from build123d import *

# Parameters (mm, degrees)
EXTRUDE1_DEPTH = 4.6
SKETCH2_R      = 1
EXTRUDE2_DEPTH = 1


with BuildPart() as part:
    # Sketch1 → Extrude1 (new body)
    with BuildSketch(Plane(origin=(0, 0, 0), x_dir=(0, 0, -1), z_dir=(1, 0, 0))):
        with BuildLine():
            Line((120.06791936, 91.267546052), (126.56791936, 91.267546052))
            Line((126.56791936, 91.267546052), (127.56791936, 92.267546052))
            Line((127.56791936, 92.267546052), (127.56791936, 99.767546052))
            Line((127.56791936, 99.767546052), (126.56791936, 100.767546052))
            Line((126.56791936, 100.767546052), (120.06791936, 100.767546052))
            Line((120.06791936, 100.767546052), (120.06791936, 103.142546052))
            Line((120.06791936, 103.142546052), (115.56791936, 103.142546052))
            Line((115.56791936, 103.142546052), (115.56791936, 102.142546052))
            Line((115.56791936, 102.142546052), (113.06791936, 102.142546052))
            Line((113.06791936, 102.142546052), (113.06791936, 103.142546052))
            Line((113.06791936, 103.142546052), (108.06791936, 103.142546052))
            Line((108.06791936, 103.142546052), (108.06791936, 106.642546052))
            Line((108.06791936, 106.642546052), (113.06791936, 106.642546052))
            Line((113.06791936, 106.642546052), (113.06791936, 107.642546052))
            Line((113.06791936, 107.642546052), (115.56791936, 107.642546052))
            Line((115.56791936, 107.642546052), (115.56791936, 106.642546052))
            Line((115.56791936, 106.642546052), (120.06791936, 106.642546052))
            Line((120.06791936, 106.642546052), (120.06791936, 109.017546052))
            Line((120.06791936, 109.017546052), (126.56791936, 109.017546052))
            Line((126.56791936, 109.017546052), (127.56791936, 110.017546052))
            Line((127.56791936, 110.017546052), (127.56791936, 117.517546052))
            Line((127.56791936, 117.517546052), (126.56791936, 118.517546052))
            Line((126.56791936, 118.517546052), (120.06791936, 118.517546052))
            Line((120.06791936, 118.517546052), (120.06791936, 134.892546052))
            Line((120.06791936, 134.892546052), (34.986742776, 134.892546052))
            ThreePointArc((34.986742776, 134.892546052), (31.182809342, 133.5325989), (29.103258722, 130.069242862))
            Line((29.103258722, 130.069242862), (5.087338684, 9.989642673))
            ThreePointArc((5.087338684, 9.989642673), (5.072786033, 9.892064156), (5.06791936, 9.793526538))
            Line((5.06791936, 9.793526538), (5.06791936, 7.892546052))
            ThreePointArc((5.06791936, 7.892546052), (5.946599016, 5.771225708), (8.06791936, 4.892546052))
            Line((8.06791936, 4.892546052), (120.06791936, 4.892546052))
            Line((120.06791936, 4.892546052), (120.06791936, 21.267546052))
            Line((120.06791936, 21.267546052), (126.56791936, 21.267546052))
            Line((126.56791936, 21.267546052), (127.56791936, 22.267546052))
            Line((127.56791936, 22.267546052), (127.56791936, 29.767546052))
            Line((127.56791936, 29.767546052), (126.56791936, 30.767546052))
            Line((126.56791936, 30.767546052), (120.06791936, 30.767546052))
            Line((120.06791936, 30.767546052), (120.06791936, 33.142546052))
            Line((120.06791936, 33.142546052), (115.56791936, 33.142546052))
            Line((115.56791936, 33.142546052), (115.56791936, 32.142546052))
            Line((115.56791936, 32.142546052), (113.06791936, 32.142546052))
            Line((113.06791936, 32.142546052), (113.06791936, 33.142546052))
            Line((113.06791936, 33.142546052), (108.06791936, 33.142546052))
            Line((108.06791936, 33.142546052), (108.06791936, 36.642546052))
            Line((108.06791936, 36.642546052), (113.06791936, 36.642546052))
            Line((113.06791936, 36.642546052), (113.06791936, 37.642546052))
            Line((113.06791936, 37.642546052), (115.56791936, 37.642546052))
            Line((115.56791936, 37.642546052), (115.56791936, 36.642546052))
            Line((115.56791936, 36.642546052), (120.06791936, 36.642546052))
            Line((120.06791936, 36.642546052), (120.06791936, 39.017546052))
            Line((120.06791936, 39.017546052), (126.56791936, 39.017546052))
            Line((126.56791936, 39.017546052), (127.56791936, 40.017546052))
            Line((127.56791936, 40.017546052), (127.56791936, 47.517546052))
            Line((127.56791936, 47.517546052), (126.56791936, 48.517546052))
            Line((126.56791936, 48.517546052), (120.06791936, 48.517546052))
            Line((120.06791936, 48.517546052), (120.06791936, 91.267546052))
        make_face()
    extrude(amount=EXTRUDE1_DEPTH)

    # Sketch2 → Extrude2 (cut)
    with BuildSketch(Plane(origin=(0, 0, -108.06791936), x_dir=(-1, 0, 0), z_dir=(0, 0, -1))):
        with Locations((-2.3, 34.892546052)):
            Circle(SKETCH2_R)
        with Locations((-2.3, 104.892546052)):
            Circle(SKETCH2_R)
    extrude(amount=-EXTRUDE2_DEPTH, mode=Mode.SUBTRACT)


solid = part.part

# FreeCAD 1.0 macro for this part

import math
import FreeCAD as App
import Part
import Sketcher
Q = App.Units.Quantity

doc = App.newDocument("Part")
params = doc.addObject("Spreadsheet::Sheet", "Params")
for row, (alias, value) in enumerate([
    ("sketch1_radius", "6 mm"),
    ("sketch1_radius2", "1 mm"),
    ("sketch1_radius3", "3 mm"),
    ("sketch1_width", "1 mm"),
    ("sketch1_height", "5 mm"),
    ("pad1_length", "4.6 mm"),
    ("sketch2_diameter", "2 mm"),
    ("pocket1_length", "1 mm"),
], start=1):
    params.set(f"A{row}", alias)
    params.set(f"B{row}", "=" + value)
    params.setAlias(f"B{row}", alias)

body = doc.addObject("PartDesign::Body", "Body")

sketch1 = body.newObject("Sketcher::SketchObject", "Sketch")
sketch1.AttachmentSupport = (doc.getObject("YZ_Plane"), [""])
sketch1.MapMode = "FlatFace"
sketch1.addGeometry([
    Part.LineSegment(App.Vector(91.27, -120.07, 0), App.Vector(91.27, -126.57, 0)),
    Part.LineSegment(App.Vector(91.27, -126.57, 0), App.Vector(92.27, -127.57, 0)),
    Part.LineSegment(App.Vector(92.27, -127.57, 0), App.Vector(99.77, -127.57, 0)),
    Part.LineSegment(App.Vector(99.77, -127.57, 0), App.Vector(100.77, -126.57, 0)),
    Part.LineSegment(App.Vector(100.77, -126.57, 0), App.Vector(100.77, -120.07, 0)),
    Part.LineSegment(App.Vector(100.77, -120.07, 0), App.Vector(103.14, -120.07, 0)),
    Part.LineSegment(App.Vector(103.14, -120.07, 0), App.Vector(103.14, -115.57, 0)),
    Part.LineSegment(App.Vector(103.14, -115.57, 0), App.Vector(102.14, -115.57, 0)),
    Part.LineSegment(App.Vector(102.14, -115.57, 0), App.Vector(102.14, -113.07, 0)),
    Part.LineSegment(App.Vector(102.14, -113.07, 0), App.Vector(103.14, -113.07, 0)),
    Part.LineSegment(App.Vector(103.14, -113.07, 0), App.Vector(103.14, -108.07, 0)),
    Part.LineSegment(App.Vector(103.14, -108.07, 0), App.Vector(106.64, -108.07, 0)),
    Part.LineSegment(App.Vector(106.64, -108.07, 0), App.Vector(106.64, -113.07, 0)),
    Part.LineSegment(App.Vector(106.64, -113.07, 0), App.Vector(107.64, -113.07, 0)),
    Part.LineSegment(App.Vector(107.64, -113.07, 0), App.Vector(107.64, -115.57, 0)),
    Part.LineSegment(App.Vector(107.64, -115.57, 0), App.Vector(106.64, -115.57, 0)),
    Part.LineSegment(App.Vector(106.64, -115.57, 0), App.Vector(106.64, -120.07, 0)),
    Part.LineSegment(App.Vector(106.64, -120.07, 0), App.Vector(109.02, -120.07, 0)),
    Part.LineSegment(App.Vector(109.02, -120.07, 0), App.Vector(109.02, -126.57, 0)),
    Part.LineSegment(App.Vector(109.02, -126.57, 0), App.Vector(110.02, -127.57, 0)),
    Part.LineSegment(App.Vector(110.02, -127.57, 0), App.Vector(117.52, -127.57, 0)),
    Part.LineSegment(App.Vector(117.52, -127.57, 0), App.Vector(118.52, -126.57, 0)),
    Part.LineSegment(App.Vector(118.52, -126.57, 0), App.Vector(118.52, -120.07, 0)),
    Part.LineSegment(App.Vector(118.52, -120.07, 0), App.Vector(134.89, -120.07, 0)),
    Part.LineSegment(App.Vector(134.89, -120.07, 0), App.Vector(134.89, -34.99, 0)),
    Part.ArcOfCircle(Part.Circle(App.Vector(128.89, -34.99, 0), App.Vector(0, 0, 1), 6), math.radians(0), math.radians(79)),
    Part.LineSegment(App.Vector(130.07, -29.1, 0), App.Vector(9.99, -5.09, 0)),
    Part.ArcOfCircle(Part.Circle(App.Vector(9.79, -6.07, 0), App.Vector(0, 0, 1), 1), math.radians(78.69), math.radians(90)),
    Part.LineSegment(App.Vector(9.79, -5.07, 0), App.Vector(7.89, -5.07, 0)),
    Part.ArcOfCircle(Part.Circle(App.Vector(7.89, -8.07, 0), App.Vector(0, 0, 1), 3), math.radians(90), math.radians(180)),
    Part.LineSegment(App.Vector(4.89, -8.07, 0), App.Vector(4.89, -120.07, 0)),
    Part.LineSegment(App.Vector(4.89, -120.07, 0), App.Vector(21.27, -120.07, 0)),
    Part.LineSegment(App.Vector(21.27, -120.07, 0), App.Vector(21.27, -126.57, 0)),
    Part.LineSegment(App.Vector(21.27, -126.57, 0), App.Vector(22.27, -127.57, 0)),
    Part.LineSegment(App.Vector(22.27, -127.57, 0), App.Vector(29.77, -127.57, 0)),
    Part.LineSegment(App.Vector(29.77, -127.57, 0), App.Vector(30.77, -126.57, 0)),
    Part.LineSegment(App.Vector(30.77, -126.57, 0), App.Vector(30.77, -120.07, 0)),
    Part.LineSegment(App.Vector(30.77, -120.07, 0), App.Vector(33.14, -120.07, 0)),
    Part.LineSegment(App.Vector(33.14, -120.07, 0), App.Vector(33.14, -115.57, 0)),
    Part.LineSegment(App.Vector(33.14, -115.57, 0), App.Vector(32.14, -115.57, 0)),
    Part.LineSegment(App.Vector(32.14, -115.57, 0), App.Vector(32.14, -113.07, 0)),
    Part.LineSegment(App.Vector(32.14, -113.07, 0), App.Vector(33.14, -113.07, 0)),
    Part.LineSegment(App.Vector(33.14, -113.07, 0), App.Vector(33.14, -108.07, 0)),
    Part.LineSegment(App.Vector(33.14, -108.07, 0), App.Vector(36.64, -108.07, 0)),
    Part.LineSegment(App.Vector(36.64, -108.07, 0), App.Vector(36.64, -113.07, 0)),
    Part.LineSegment(App.Vector(36.64, -113.07, 0), App.Vector(37.64, -113.07, 0)),
    Part.LineSegment(App.Vector(37.64, -113.07, 0), App.Vector(37.64, -115.57, 0)),
    Part.LineSegment(App.Vector(37.64, -115.57, 0), App.Vector(36.64, -115.57, 0)),
    Part.LineSegment(App.Vector(36.64, -115.57, 0), App.Vector(36.64, -120.07, 0)),
    Part.LineSegment(App.Vector(36.64, -120.07, 0), App.Vector(39.02, -120.07, 0)),
    Part.LineSegment(App.Vector(39.02, -120.07, 0), App.Vector(39.02, -126.57, 0)),
    Part.LineSegment(App.Vector(39.02, -126.57, 0), App.Vector(40.02, -127.57, 0)),
    Part.LineSegment(App.Vector(40.02, -127.57, 0), App.Vector(47.52, -127.57, 0)),
    Part.LineSegment(App.Vector(47.52, -127.57, 0), App.Vector(48.52, -126.57, 0)),
    Part.LineSegment(App.Vector(48.52, -126.57, 0), App.Vector(48.52, -120.07, 0)),
    Part.LineSegment(App.Vector(48.52, -120.07, 0), App.Vector(91.27, -120.07, 0)),
], False)
sketch1.addConstraint([
    Sketcher.Constraint("Coincident", 0, 2, 1, 1),
    Sketcher.Constraint("Coincident", 1, 2, 2, 1),
    Sketcher.Constraint("Coincident", 2, 2, 3, 1),
    Sketcher.Constraint("Coincident", 3, 2, 4, 1),
    Sketcher.Constraint("Coincident", 4, 2, 5, 1),
    Sketcher.Constraint("Coincident", 5, 2, 6, 1),
    Sketcher.Constraint("Coincident", 6, 2, 7, 1),
    Sketcher.Constraint("Coincident", 7, 2, 8, 1),
    Sketcher.Constraint("Coincident", 8, 2, 9, 1),
    Sketcher.Constraint("Coincident", 9, 2, 10, 1),
    Sketcher.Constraint("Coincident", 10, 2, 11, 1),
    Sketcher.Constraint("Coincident", 11, 2, 12, 1),
    Sketcher.Constraint("Coincident", 12, 2, 13, 1),
    Sketcher.Constraint("Coincident", 13, 2, 14, 1),
    Sketcher.Constraint("Coincident", 14, 2, 15, 1),
    Sketcher.Constraint("Coincident", 15, 2, 16, 1),
    Sketcher.Constraint("Coincident", 16, 2, 17, 1),
    Sketcher.Constraint("Coincident", 17, 2, 18, 1),
    Sketcher.Constraint("Coincident", 18, 2, 19, 1),
    Sketcher.Constraint("Coincident", 19, 2, 20, 1),
    Sketcher.Constraint("Coincident", 20, 2, 21, 1),
    Sketcher.Constraint("Coincident", 21, 2, 22, 1),
    Sketcher.Constraint("Coincident", 22, 2, 23, 1),
    Sketcher.Constraint("Coincident", 23, 2, 24, 1),
    Sketcher.Constraint("Tangent", 24, 2, 25, 1),
    Sketcher.Constraint("Tangent", 25, 2, 26, 1),
    Sketcher.Constraint("Tangent", 26, 2, 27, 1),
    Sketcher.Constraint("Tangent", 27, 2, 28, 1),
    Sketcher.Constraint("Tangent", 28, 2, 29, 1),
    Sketcher.Constraint("Tangent", 29, 2, 30, 1),
    Sketcher.Constraint("Coincident", 30, 2, 31, 1),
    Sketcher.Constraint("Coincident", 31, 2, 32, 1),
    Sketcher.Constraint("Coincident", 32, 2, 33, 1),
    Sketcher.Constraint("Coincident", 33, 2, 34, 1),
    Sketcher.Constraint("Coincident", 34, 2, 35, 1),
    Sketcher.Constraint("Coincident", 35, 2, 36, 1),
    Sketcher.Constraint("Coincident", 36, 2, 37, 1),
    Sketcher.Constraint("Coincident", 37, 2, 38, 1),
    Sketcher.Constraint("Coincident", 38, 2, 39, 1),
    Sketcher.Constraint("Coincident", 39, 2, 40, 1),
    Sketcher.Constraint("Coincident", 40, 2, 41, 1),
    Sketcher.Constraint("Coincident", 41, 2, 42, 1),
    Sketcher.Constraint("Coincident", 42, 2, 43, 1),
    Sketcher.Constraint("Coincident", 43, 2, 44, 1),
    Sketcher.Constraint("Coincident", 44, 2, 45, 1),
    Sketcher.Constraint("Coincident", 45, 2, 46, 1),
    Sketcher.Constraint("Coincident", 46, 2, 47, 1),
    Sketcher.Constraint("Coincident", 47, 2, 48, 1),
    Sketcher.Constraint("Coincident", 48, 2, 49, 1),
    Sketcher.Constraint("Coincident", 49, 2, 50, 1),
    Sketcher.Constraint("Coincident", 50, 2, 51, 1),
    Sketcher.Constraint("Coincident", 51, 2, 52, 1),
    Sketcher.Constraint("Coincident", 52, 2, 53, 1),
    Sketcher.Constraint("Coincident", 53, 2, 54, 1),
    Sketcher.Constraint("Coincident", 54, 2, 55, 1),
    Sketcher.Constraint("Coincident", 55, 2, 0, 1),
    Sketcher.Constraint("Vertical", 0),
    Sketcher.Constraint("Horizontal", 2),
    Sketcher.Constraint("Vertical", 4),
    Sketcher.Constraint("Horizontal", 5),
    Sketcher.Constraint("Vertical", 6),
    Sketcher.Constraint("Horizontal", 7),
    Sketcher.Constraint("Vertical", 8),
    Sketcher.Constraint("Horizontal", 9),
    Sketcher.Constraint("Vertical", 10),
    Sketcher.Constraint("Horizontal", 11),
    Sketcher.Constraint("Vertical", 12),
    Sketcher.Constraint("Horizontal", 13),
    Sketcher.Constraint("Vertical", 14),
    Sketcher.Constraint("Horizontal", 15),
    Sketcher.Constraint("Vertical", 16),
    Sketcher.Constraint("Horizontal", 17),
    Sketcher.Constraint("Vertical", 18),
    Sketcher.Constraint("Horizontal", 20),
    Sketcher.Constraint("Vertical", 22),
    Sketcher.Constraint("Horizontal", 23),
    Sketcher.Constraint("Vertical", 24),
    Sketcher.Constraint("Horizontal", 28),
    Sketcher.Constraint("Vertical", 30),
    Sketcher.Constraint("Horizontal", 31),
    Sketcher.Constraint("Vertical", 32),
    Sketcher.Constraint("Horizontal", 34),
    Sketcher.Constraint("Vertical", 36),
    Sketcher.Constraint("Horizontal", 37),
    Sketcher.Constraint("Vertical", 38),
    Sketcher.Constraint("Horizontal", 39),
    Sketcher.Constraint("Vertical", 40),
    Sketcher.Constraint("Horizontal", 41),
    Sketcher.Constraint("Vertical", 42),
    Sketcher.Constraint("Horizontal", 43),
    Sketcher.Constraint("Vertical", 44),
    Sketcher.Constraint("Horizontal", 45),
    Sketcher.Constraint("Vertical", 46),
    Sketcher.Constraint("Horizontal", 47),
    Sketcher.Constraint("Vertical", 48),
    Sketcher.Constraint("Horizontal", 49),
    Sketcher.Constraint("Vertical", 50),
    Sketcher.Constraint("Horizontal", 52),
    Sketcher.Constraint("Vertical", 54),
    Sketcher.Constraint("Horizontal", 55),
    Sketcher.Constraint("Perpendicular", 1, 3),
    Sketcher.Constraint("Perpendicular", 3, 19),
    Sketcher.Constraint("Perpendicular", 19, 21),
    Sketcher.Constraint("Perpendicular", 21, 33),
    Sketcher.Constraint("Perpendicular", 33, 35),
    Sketcher.Constraint("Perpendicular", 35, 51),
    Sketcher.Constraint("Perpendicular", 51, 53),
    Sketcher.Constraint("Horizontal", 0, 2, 3, 2),
    Sketcher.Constraint("Horizontal", 9, 2, 12, 2),
    Sketcher.Constraint("Horizontal", 7, 2, 14, 2),
    Sketcher.Constraint("Horizontal", 5, 2, 16, 2),
    Sketcher.Constraint("Horizontal", 3, 2, 18, 2),
    Sketcher.Constraint("Horizontal", 2, 2, 19, 2),
    Sketcher.Constraint("Horizontal", 18, 2, 21, 2),
    Sketcher.Constraint("Horizontal", 17, 2, 22, 2),
    Sketcher.Constraint("Horizontal", 23, 2, 30, 2),
    Sketcher.Constraint("Horizontal", 21, 2, 32, 2),
    Sketcher.Constraint("Horizontal", 20, 2, 33, 2),
    Sketcher.Constraint("Horizontal", 32, 2, 35, 2),
    Sketcher.Constraint("Horizontal", 31, 2, 36, 2),
    Sketcher.Constraint("Horizontal", 15, 2, 38, 2),
    Sketcher.Constraint("Horizontal", 13, 2, 40, 2),
    Sketcher.Constraint("Horizontal", 11, 2, 42, 2),
    Sketcher.Constraint("Horizontal", 41, 2, 44, 2),
    Sketcher.Constraint("Horizontal", 39, 2, 46, 2),
    Sketcher.Constraint("Horizontal", 37, 2, 48, 2),
    Sketcher.Constraint("Horizontal", 35, 2, 50, 2),
    Sketcher.Constraint("Horizontal", 34, 2, 51, 2),
    Sketcher.Constraint("Horizontal", 50, 2, 53, 2),
    Sketcher.Constraint("Horizontal", 49, 2, 54, 2),
    Sketcher.Constraint("Vertical", 6, 2, 9, 2),
    Sketcher.Constraint("Vertical", 12, 2, 15, 2),
    Sketcher.Constraint("Vertical", 38, 2, 41, 2),
    Sketcher.Constraint("Vertical", 44, 2, 47, 2),
    Sketcher.Constraint("Equal", 9, 13),
    Sketcher.Constraint("Equal", 5, 17),
    Sketcher.Constraint("Equal", 2, 20),
    Sketcher.Constraint("Equal", 23, 31),
    Sketcher.Constraint("Equal", 20, 34),
    Sketcher.Constraint("Equal", 17, 37),
    Sketcher.Constraint("Equal", 15, 39),
    Sketcher.Constraint("Equal", 11, 43),
    Sketcher.Constraint("Equal", 41, 45),
    Sketcher.Constraint("Equal", 37, 49),
    Sketcher.Constraint("Equal", 34, 52),
    Sketcher.Constraint("Equal", 1, 3),
    Sketcher.Constraint("Radius", 25, Q("6 mm")),
    Sketcher.Constraint("Radius", 27, Q("1 mm")),
    Sketcher.Constraint("Radius", 29, Q("3 mm")),
    Sketcher.Constraint("DistanceX", 7, 2, 7, 1, Q("1 mm")),
    Sketcher.Constraint("DistanceY", 10, 1, 10, 2, Q("5 mm")),
    Sketcher.Constraint("DistanceY", 30, 2, 30, 1, Q("112 mm")),
    Sketcher.Constraint("DistanceX", 2, 1, 2, 2, Q("7.5 mm")),
    Sketcher.Constraint("DistanceX", 11, 1, 11, 2, Q("3.5 mm")),
    Sketcher.Constraint("DistanceY", 0, 2, 0, 1, Q("6.5 mm")),
    Sketcher.Constraint("DistanceY", 6, 1, 6, 2, Q("4.5 mm")),
    Sketcher.Constraint("DistanceY", 8, 1, 8, 2, Q("2.5 mm")),
    Sketcher.Constraint("DistanceX", 29, 3, 25, 3, Q("121 mm")),
    Sketcher.Constraint("DistanceX", 0, 2, 1, 2, Q("1 mm")),
    Sketcher.Constraint("DistanceX", 31, 2, 0, 2, Q("70 mm")),
    Sketcher.Constraint("DistanceX", 55, 1, 55, 2, Q("42.75 mm")),
    Sketcher.Constraint("DistanceX", 28, 2, 28, 1, Q("1.90098 mm")),
    Sketcher.Constraint("DistanceX", 26, 2, 25, 2, Q("120.0796 mm")),
    Sketcher.Constraint("DistanceY", 27, 3, -1, 1, Q("6.067919 mm")),
    Sketcher.Constraint("DistanceX", -1, 1, 25, 3, Q("128.892546 mm")),
])
sketch1.setExpression("Constraints[146]", "Params.sketch1_radius")
sketch1.setExpression("Constraints[147]", "Params.sketch1_radius2")
sketch1.setExpression("Constraints[148]", "Params.sketch1_radius3")
sketch1.setExpression("Constraints[149]", "Params.sketch1_width")
sketch1.setExpression("Constraints[150]", "Params.sketch1_height")
pad1 = body.newObject("PartDesign::Pad", "Pad")
pad1.Profile = sketch1
pad1.setExpression("Length", "Params.pad1_length")

sketch2 = body.newObject("Sketcher::SketchObject", "Sketch001")
sketch2.AttachmentSupport = (doc.getObject("XY_Plane"), [""])
sketch2.MapMode = "FlatFace"
sketch2.AttachmentOffset = App.Placement(App.Vector(0, 0, -108.067919), App.Rotation())
sketch2.addGeometry([
    Part.Circle(App.Vector(2.3, 34.9, 0), App.Vector(0, 0, 1), 1),
    Part.Circle(App.Vector(2.3, 104.9, 0), App.Vector(0, 0, 1), 1),
], False)
sketch2.addConstraint([
    Sketcher.Constraint("Equal", 0, 1),
    Sketcher.Constraint("Vertical", 0, 3, 1, 3),
    Sketcher.Constraint("Diameter", 0, Q("2 mm")),
    Sketcher.Constraint("DistanceY", 0, 3, 1, 3, Q("70 mm")),
    Sketcher.Constraint("DistanceX", -1, 1, 0, 3, Q("2.3 mm")),
    Sketcher.Constraint("DistanceY", -1, 1, 0, 3, Q("34.892546 mm")),
])
sketch2.setExpression("Constraints[2]", "Params.sketch2_diameter")
pocket1 = body.newObject("PartDesign::Pocket", "Pocket")
pocket1.Profile = sketch2
pocket1.setExpression("Length", "Params.pocket1_length")
pocket1.Reversed = True

doc.recompute()
